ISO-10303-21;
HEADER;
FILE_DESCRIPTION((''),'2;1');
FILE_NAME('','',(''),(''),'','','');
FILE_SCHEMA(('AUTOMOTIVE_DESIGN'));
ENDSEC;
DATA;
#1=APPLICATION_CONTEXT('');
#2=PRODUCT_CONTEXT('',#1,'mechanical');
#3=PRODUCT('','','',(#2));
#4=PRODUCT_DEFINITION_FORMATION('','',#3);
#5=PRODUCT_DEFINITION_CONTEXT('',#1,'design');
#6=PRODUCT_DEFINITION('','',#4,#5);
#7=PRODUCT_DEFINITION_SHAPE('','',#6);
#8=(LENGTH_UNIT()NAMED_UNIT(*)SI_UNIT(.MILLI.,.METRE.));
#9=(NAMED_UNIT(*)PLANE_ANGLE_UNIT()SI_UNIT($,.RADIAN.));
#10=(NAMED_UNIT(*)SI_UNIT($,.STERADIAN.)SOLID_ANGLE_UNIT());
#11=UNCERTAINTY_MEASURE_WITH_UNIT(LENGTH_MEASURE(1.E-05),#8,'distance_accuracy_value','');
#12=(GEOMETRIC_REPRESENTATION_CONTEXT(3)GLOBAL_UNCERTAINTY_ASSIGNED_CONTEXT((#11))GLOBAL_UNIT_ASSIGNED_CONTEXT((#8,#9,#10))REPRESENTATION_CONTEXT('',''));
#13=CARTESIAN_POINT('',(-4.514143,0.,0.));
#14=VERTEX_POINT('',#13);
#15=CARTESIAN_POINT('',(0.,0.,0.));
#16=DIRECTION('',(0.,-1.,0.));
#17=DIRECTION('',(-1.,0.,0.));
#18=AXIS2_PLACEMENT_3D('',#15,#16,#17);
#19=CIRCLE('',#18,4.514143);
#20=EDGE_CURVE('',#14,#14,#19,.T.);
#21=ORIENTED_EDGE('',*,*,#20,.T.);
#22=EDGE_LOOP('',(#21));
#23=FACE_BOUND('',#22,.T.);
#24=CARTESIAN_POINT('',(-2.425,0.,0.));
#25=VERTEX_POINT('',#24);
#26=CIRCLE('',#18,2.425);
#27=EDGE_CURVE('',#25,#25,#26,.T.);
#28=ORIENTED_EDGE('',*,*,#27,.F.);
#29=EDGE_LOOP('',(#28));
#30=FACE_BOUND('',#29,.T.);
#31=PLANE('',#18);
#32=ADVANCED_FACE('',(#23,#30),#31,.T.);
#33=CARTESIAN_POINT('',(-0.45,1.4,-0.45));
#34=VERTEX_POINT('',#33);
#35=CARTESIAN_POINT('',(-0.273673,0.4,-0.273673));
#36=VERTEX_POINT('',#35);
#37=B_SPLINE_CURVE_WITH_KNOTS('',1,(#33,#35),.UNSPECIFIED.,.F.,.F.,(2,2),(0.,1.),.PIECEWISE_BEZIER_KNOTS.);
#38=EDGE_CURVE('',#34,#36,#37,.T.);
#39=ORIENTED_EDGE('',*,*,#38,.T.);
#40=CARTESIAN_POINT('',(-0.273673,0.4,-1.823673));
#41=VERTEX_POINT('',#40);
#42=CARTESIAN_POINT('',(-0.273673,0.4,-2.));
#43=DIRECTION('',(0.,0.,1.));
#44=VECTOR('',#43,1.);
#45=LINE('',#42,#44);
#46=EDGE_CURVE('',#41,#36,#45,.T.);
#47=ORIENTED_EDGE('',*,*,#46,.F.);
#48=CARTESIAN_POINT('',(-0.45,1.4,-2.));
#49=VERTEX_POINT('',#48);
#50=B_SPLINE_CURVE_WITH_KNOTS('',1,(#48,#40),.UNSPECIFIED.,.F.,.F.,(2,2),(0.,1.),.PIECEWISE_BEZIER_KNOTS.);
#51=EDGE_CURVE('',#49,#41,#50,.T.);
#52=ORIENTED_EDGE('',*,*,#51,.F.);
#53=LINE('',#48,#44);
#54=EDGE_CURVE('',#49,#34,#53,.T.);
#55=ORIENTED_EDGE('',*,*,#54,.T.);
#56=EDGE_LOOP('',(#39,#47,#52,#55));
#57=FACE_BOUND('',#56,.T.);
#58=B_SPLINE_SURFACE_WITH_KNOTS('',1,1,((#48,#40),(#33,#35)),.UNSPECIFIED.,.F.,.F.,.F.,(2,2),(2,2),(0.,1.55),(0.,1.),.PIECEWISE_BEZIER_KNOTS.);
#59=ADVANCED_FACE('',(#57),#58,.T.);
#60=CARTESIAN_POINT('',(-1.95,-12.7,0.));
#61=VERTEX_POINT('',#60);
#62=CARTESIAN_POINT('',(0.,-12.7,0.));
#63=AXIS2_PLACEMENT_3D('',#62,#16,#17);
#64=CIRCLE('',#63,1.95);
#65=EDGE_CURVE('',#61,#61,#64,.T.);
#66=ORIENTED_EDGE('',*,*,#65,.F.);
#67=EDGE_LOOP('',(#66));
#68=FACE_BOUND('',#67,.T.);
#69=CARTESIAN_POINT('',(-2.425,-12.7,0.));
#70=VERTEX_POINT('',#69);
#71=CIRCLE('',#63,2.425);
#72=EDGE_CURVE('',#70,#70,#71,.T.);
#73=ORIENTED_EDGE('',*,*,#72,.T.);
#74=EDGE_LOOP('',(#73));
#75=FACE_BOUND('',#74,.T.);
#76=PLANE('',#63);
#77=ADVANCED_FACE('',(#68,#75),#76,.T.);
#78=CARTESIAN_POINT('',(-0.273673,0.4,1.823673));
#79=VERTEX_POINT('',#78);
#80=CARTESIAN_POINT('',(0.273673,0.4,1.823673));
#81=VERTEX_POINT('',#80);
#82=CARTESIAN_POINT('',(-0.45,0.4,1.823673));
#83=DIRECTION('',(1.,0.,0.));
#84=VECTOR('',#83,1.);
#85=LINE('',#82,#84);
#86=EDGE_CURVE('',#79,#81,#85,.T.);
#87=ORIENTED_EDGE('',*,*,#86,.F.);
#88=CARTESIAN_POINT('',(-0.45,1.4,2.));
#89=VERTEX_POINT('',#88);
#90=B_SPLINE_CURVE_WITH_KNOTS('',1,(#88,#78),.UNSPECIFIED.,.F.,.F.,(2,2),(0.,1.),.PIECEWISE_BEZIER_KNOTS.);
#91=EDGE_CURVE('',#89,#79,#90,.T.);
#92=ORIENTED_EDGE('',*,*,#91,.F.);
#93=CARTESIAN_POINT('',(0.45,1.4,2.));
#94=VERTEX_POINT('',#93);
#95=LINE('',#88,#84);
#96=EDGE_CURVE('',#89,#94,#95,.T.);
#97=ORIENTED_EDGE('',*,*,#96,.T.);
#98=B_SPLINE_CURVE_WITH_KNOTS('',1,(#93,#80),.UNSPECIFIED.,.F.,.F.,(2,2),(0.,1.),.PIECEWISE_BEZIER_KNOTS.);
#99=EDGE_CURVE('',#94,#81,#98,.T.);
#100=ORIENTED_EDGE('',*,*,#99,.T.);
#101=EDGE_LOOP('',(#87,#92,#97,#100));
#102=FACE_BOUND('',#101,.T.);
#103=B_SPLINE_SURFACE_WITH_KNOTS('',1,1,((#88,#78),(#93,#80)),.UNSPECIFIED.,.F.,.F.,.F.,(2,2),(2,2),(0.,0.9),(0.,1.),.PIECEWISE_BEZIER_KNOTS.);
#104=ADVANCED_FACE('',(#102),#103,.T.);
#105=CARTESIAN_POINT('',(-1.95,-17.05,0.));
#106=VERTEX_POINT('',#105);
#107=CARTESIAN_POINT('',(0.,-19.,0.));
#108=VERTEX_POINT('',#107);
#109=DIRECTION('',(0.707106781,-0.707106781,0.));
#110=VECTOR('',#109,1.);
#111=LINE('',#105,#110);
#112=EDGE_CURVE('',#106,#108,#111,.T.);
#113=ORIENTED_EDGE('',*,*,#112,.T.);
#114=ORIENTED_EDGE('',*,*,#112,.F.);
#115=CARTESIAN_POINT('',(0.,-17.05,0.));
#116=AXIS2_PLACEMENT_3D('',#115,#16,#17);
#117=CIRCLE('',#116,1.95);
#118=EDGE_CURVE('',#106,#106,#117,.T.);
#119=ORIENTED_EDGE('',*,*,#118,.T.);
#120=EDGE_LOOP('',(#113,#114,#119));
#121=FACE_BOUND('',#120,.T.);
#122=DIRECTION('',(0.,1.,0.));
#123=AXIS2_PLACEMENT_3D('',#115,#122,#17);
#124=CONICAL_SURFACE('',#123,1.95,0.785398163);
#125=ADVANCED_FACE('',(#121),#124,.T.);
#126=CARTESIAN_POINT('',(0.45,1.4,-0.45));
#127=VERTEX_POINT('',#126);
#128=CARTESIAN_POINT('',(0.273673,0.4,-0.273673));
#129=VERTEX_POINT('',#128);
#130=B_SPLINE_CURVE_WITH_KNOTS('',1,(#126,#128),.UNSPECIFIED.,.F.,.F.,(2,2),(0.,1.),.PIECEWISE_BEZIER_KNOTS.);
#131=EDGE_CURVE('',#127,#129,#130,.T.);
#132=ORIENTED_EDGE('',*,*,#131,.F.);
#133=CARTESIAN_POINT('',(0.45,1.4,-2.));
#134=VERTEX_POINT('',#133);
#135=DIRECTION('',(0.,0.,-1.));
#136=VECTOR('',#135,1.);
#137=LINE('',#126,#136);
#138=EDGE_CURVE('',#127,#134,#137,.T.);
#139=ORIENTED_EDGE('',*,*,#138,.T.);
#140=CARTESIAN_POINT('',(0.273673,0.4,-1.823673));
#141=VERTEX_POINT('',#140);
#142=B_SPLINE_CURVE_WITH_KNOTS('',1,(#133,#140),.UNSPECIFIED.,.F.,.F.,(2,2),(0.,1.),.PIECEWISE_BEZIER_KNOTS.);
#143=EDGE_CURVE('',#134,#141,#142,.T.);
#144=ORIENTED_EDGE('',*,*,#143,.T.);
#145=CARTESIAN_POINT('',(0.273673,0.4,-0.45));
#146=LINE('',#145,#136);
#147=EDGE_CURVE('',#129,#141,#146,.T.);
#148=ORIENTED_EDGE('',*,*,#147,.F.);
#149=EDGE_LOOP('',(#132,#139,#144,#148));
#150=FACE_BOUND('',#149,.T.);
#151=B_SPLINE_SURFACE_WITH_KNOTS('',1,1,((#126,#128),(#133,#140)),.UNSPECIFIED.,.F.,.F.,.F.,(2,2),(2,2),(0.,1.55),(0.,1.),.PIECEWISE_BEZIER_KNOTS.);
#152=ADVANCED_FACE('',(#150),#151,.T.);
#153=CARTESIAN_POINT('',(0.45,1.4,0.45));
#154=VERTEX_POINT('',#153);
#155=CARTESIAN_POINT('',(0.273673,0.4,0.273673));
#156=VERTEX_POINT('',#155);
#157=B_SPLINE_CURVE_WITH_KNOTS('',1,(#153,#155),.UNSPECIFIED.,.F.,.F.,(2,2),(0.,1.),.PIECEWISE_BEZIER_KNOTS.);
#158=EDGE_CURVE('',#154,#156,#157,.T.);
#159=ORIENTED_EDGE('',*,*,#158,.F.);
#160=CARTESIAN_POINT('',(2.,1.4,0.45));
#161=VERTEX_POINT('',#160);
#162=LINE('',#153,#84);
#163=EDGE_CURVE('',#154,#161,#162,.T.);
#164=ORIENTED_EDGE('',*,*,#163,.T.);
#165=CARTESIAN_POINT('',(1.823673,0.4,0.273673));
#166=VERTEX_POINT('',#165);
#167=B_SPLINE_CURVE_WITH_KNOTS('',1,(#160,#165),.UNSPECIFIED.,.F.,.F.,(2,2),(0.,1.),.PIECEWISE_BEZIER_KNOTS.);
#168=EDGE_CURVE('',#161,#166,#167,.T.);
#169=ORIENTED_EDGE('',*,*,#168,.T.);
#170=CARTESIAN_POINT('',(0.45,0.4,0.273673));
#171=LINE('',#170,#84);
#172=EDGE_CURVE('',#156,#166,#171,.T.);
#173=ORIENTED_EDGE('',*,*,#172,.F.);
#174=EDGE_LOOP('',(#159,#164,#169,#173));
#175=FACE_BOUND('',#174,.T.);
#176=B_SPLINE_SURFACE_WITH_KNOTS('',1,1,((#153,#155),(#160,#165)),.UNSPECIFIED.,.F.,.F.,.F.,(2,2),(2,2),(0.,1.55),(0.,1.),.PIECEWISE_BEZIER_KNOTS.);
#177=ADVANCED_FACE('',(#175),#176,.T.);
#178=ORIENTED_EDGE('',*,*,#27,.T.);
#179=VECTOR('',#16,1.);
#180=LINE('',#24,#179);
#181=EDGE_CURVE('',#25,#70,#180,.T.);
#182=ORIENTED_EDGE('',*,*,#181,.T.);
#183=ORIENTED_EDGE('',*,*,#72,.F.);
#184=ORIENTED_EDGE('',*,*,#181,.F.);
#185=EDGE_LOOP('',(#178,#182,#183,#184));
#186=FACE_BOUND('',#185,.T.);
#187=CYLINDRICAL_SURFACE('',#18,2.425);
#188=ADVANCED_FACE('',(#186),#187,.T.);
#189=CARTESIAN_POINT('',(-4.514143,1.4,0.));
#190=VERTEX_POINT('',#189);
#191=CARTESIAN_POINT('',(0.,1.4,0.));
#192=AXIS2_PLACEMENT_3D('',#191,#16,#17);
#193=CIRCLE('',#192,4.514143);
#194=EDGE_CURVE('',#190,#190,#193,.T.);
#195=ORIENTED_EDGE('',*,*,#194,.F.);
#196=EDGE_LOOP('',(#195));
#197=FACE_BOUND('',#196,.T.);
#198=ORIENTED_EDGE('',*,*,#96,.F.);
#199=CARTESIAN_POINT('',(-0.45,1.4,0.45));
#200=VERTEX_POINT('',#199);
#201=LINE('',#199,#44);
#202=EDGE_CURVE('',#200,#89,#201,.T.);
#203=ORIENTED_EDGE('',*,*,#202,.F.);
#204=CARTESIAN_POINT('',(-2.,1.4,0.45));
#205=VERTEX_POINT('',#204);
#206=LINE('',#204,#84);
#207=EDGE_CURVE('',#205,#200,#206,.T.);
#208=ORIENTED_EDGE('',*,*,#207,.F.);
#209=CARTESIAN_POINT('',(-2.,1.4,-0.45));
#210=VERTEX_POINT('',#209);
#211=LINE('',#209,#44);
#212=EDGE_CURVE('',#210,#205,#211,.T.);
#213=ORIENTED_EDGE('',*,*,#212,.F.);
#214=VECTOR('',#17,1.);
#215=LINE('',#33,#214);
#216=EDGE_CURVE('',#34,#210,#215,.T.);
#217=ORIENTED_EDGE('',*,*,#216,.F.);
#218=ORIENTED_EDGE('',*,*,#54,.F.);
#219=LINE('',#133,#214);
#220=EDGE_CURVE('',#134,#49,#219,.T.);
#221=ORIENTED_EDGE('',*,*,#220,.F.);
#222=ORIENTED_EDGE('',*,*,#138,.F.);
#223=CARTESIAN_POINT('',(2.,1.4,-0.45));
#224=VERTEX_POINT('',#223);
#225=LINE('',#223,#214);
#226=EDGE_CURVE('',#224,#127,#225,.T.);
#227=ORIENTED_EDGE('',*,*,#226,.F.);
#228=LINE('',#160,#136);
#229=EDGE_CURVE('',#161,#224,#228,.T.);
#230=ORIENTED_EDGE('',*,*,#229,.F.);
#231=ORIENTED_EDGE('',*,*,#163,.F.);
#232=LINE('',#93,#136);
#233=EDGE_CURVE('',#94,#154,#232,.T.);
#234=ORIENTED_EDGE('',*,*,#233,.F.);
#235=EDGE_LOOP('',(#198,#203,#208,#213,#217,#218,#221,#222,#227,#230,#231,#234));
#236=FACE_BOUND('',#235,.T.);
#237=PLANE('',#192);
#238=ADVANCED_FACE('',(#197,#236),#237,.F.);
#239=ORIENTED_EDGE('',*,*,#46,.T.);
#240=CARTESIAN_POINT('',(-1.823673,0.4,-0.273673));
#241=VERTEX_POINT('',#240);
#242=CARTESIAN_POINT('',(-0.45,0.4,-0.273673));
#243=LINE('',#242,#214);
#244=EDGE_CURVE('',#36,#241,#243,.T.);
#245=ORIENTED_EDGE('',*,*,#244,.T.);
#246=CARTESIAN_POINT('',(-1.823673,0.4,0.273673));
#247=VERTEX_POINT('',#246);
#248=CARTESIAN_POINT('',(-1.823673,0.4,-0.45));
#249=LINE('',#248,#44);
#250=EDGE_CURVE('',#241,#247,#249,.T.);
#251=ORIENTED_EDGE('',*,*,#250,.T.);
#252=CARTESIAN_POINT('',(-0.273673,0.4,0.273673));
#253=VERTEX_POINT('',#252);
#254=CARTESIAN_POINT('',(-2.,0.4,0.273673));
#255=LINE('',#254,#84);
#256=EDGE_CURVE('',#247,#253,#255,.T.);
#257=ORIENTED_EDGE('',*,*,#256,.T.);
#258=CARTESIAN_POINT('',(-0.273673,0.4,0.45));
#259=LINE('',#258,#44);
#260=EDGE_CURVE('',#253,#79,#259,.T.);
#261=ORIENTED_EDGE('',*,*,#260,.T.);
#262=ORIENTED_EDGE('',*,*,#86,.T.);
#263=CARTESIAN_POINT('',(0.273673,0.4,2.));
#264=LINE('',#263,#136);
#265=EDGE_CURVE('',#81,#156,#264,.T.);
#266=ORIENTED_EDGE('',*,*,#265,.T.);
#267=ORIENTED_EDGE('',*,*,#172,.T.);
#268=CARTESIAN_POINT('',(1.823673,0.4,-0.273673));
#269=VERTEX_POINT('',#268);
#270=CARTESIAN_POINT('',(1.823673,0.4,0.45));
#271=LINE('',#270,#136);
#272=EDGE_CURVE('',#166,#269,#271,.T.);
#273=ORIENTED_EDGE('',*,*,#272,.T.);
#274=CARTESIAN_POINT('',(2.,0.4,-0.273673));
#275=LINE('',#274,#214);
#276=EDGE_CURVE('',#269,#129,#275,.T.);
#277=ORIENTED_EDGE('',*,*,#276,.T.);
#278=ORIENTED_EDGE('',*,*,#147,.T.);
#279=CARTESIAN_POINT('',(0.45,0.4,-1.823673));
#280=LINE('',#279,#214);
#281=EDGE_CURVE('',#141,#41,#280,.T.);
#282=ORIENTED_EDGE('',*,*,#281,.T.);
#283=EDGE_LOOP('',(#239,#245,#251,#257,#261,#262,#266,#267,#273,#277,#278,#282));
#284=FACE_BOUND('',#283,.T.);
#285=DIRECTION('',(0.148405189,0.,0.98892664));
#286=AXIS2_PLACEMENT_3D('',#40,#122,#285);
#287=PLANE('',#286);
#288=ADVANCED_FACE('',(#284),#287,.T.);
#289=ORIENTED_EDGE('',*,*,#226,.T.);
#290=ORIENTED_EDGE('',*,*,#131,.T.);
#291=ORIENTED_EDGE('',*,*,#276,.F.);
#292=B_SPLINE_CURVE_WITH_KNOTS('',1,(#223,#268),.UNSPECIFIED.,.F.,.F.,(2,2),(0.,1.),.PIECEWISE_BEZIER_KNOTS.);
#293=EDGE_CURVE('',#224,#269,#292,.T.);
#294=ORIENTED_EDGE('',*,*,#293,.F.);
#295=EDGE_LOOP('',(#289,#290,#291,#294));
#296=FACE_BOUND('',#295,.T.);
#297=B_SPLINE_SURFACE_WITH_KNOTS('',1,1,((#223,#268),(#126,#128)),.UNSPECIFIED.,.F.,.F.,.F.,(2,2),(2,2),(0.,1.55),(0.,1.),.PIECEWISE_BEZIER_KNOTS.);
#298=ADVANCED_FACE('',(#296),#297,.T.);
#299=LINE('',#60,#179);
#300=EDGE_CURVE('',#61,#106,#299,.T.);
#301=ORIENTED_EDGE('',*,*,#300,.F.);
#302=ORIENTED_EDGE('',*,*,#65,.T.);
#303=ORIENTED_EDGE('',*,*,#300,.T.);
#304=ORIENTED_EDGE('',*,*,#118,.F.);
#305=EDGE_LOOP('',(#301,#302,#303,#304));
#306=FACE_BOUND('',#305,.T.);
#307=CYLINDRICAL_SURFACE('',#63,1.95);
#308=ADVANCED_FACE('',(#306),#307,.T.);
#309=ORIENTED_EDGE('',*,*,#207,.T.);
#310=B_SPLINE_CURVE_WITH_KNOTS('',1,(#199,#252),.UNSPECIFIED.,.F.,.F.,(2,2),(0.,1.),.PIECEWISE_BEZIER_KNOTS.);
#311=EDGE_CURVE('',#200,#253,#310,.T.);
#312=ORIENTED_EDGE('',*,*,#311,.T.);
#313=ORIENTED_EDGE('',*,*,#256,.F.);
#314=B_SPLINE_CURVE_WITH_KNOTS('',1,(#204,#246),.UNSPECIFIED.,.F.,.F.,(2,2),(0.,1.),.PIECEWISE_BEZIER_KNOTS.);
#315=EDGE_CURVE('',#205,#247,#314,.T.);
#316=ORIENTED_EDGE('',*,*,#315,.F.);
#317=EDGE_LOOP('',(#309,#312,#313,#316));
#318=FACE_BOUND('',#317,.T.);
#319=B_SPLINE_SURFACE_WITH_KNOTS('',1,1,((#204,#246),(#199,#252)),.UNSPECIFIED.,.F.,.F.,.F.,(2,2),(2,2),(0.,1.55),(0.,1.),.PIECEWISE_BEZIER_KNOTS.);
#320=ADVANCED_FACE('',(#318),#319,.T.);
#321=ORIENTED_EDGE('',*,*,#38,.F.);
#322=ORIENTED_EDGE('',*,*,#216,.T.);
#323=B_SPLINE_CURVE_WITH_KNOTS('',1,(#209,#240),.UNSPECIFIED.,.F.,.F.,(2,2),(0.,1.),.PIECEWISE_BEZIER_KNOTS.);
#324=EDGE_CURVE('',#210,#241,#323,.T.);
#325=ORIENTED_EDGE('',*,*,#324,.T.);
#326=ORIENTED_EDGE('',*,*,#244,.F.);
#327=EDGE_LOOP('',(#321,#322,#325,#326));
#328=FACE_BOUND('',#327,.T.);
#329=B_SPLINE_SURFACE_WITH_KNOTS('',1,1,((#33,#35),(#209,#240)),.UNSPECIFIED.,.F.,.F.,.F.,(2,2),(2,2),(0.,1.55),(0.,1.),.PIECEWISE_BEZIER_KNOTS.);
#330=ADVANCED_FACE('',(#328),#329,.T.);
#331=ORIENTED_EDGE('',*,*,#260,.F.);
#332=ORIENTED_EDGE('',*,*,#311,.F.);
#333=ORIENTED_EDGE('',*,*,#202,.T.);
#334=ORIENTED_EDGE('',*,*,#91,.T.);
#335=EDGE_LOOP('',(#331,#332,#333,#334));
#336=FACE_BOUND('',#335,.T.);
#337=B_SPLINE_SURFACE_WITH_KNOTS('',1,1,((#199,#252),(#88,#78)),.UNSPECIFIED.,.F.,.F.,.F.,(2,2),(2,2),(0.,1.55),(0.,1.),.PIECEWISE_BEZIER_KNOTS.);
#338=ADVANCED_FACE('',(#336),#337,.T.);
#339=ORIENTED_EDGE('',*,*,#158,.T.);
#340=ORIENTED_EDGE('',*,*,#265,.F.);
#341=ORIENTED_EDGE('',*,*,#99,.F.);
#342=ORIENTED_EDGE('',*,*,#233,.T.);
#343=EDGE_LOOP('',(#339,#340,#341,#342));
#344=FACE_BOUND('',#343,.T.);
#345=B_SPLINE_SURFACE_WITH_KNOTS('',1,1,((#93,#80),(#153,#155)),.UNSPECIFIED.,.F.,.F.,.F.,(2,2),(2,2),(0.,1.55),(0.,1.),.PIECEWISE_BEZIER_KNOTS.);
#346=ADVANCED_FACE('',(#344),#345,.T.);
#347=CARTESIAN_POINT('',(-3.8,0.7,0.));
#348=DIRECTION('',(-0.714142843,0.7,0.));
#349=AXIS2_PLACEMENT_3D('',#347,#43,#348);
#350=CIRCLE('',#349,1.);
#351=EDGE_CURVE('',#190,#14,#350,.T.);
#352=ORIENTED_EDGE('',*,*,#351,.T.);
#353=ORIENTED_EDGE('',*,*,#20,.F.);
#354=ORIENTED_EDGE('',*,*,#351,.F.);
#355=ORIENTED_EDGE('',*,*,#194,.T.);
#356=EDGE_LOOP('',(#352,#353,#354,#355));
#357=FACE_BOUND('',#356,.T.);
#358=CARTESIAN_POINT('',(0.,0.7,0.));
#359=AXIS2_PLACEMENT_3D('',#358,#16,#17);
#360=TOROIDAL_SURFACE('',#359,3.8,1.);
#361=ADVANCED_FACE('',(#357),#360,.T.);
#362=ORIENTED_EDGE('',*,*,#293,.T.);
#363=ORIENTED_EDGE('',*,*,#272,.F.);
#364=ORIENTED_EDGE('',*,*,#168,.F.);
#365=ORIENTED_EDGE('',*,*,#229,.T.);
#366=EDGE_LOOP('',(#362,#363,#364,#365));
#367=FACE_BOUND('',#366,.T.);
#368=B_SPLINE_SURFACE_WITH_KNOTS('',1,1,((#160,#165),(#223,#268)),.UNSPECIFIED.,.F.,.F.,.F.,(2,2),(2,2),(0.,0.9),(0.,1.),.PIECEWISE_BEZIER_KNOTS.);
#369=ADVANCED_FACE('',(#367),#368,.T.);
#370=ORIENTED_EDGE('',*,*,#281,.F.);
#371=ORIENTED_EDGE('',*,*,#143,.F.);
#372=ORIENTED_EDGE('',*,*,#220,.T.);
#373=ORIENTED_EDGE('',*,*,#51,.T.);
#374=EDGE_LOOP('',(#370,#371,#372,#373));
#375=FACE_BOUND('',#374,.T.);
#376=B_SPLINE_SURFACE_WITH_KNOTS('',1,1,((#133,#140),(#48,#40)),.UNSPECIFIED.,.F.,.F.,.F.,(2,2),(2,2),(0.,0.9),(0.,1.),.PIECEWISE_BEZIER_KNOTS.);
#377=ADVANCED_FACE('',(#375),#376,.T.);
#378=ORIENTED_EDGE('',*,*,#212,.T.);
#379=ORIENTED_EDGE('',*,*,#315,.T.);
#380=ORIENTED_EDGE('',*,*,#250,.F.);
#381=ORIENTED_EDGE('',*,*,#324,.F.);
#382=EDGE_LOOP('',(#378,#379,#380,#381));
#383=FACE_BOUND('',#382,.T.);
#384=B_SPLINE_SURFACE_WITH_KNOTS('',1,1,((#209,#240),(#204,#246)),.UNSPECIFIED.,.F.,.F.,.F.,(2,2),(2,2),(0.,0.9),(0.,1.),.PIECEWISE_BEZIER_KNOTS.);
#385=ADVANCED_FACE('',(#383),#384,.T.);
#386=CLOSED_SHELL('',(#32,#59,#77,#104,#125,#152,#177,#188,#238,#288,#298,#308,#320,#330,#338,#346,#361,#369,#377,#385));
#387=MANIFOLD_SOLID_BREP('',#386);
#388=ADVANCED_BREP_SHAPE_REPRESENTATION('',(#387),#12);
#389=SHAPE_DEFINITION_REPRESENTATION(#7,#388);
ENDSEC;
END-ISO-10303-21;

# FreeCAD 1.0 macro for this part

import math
import FreeCAD as App
import Part
import Sketcher

V = App.Vector
Q = App.Units.Quantity


def add_polygon(sketch, points):
    """Adds a closed chain of lines whose ends are joined by coincident constraints."""
    first, n = sketch.GeometryCount, len(points)
    for a, b in zip(points, points[1:] + points[:1]):
        sketch.addGeometry(Part.LineSegment(App.Vector(*a, 0), App.Vector(*b, 0)), False)
    for i in range(n):
        sketch.addConstraint(Sketcher.Constraint("Coincident", first + i, 2, first + (i + 1) % n, 1))

doc = App.newDocument("Part")
params = doc.addObject("Spreadsheet::Sheet", "Params")
for row, (alias, value) in enumerate([
    ("sketch1_radius", "1 mm"),
    ("sketch1_height", "12.7 mm"),
    ("sketch1_height2", "20.4 mm"),
    ("sketch1_height3", "4.35 mm"),
    ("revolution_angle", "360 deg"),
    ("sketch2_width", "0.9 mm"),
    ("pocket1_length", "1 mm"),
    ("pocket1_taper", "-10 deg"),
], start=1):
    params.set(f"A{row}", alias)
    params.set(f"B{row}", "=" + value)
    params.setAlias(f"B{row}", alias)

body = doc.addObject("PartDesign::Body", "Body")

# Sketch on XY plane
sketch1 = body.newObject("Sketcher::SketchObject", "Sketch")
sketch1.AttachmentSupport = (doc.getObject("XY_Plane"), [""])
sketch1.MapMode = "FlatFace"
sketch1.addGeometry([
    Part.LineSegment(V(-2.425, 0, 0), V(-2.425, -12.7, 0)),  # 0
    Part.LineSegment(V(-2.425, -12.7, 0), V(-1.95, -12.7, 0)),  # 1
    Part.LineSegment(V(-1.95, -12.7, 0), V(-1.95, -17.05, 0)),  # 2
    Part.LineSegment(V(-1.95, -17.05, 0), V(0, -19, 0)),  # 3
    Part.LineSegment(V(0, -19, 0), V(0, 1.4, 0)),  # 4
    Part.LineSegment(V(0, 1.4, 0), V(-4.514143, 1.4, 0)),  # 5
    Part.ArcOfCircle(Part.Circle(V(-3.8, 0.7, 0), V(0, 0, 1), 1), math.radians(135.572996), math.radians(224.427004)),  # 6
    Part.LineSegment(V(-4.514143, 0, 0), V(-2.425, 0, 0)),  # 7
], False)
sketch1.addConstraint([
    Sketcher.Constraint("Coincident", 0, 2, 1, 1),
    Sketcher.Constraint("Coincident", 1, 2, 2, 1),
    Sketcher.Constraint("Coincident", 2, 2, 3, 1),
    Sketcher.Constraint("Coincident", 3, 2, 4, 1),
    Sketcher.Constraint("Coincident", 4, 2, 5, 1),
    Sketcher.Constraint("Coincident", 5, 2, 6, 1),
    Sketcher.Constraint("Coincident", 6, 2, 7, 1),
    Sketcher.Constraint("Coincident", 7, 2, 0, 1),
    Sketcher.Constraint("Vertical", 0),
    Sketcher.Constraint("Horizontal", 1),
    Sketcher.Constraint("Vertical", 2),
    Sketcher.Constraint("Vertical", 4),
    Sketcher.Constraint("Horizontal", 5),
    Sketcher.Constraint("Horizontal", 7),
    Sketcher.Constraint("PointOnObject", 3, 2, -2),
    Sketcher.Constraint("PointOnObject", 6, 2, -1),
    Sketcher.Constraint("Vertical", 5, 2, 6, 2),
    Sketcher.Constraint("Radius", 6, 1.0),
    Sketcher.Constraint("Angle", 3, Q("-45 deg")),
    Sketcher.Constraint("DistanceY", 0, 2, 0, 1, 12.7),
    Sketcher.Constraint("DistanceY", 4, 1, 4, 2, 20.4),
    Sketcher.Constraint("DistanceY", 3, 2, -1, 1, 19.0),
    Sketcher.Constraint("DistanceY", 2, 2, 2, 1, 4.35),
    Sketcher.Constraint("DistanceX", 6, 3, -1, 1, 3.8),
    Sketcher.Constraint("DistanceX", 1, 1, 1, 2, 0.475),
])
sketch1.setExpression("Constraints[17]", "Params.sketch1_radius")
sketch1.setExpression("Constraints[19]", "Params.sketch1_height")
sketch1.setExpression("Constraints[20]", "Params.sketch1_height2")
sketch1.setExpression("Constraints[22]", "Params.sketch1_height3")
revolution = body.newObject("PartDesign::Revolution", "Revolution")
revolution.Profile = sketch1
revolution.ReferenceAxis = (sketch1, ["V_Axis"])
revolution.setExpression("Angle", "Params.revolution_angle")

# Sketch on XZ plane
sketch2 = body.newObject("Sketcher::SketchObject", "Sketch001")
sketch2.AttachmentSupport = (doc.getObject("XZ_Plane"), [""])
sketch2.MapMode = "FlatFace"
sketch2.AttachmentOffset = App.Placement(V(0, 0, -1.4), App.Rotation())
add_polygon(sketch2, [(-0.45, -2), (-0.45, -0.45), (-2, -0.45), (-2, 0.45), (-0.45, 0.45), (-0.45, 2), (0.45, 2), (0.45, 0.45), (2, 0.45), (2, -0.45), (0.45, -0.45), (0.45, -2)])  # lines 0-11
sketch2.addConstraint([
    Sketcher.Constraint("Vertical", 0),
    Sketcher.Constraint("Horizontal", 1),
    Sketcher.Constraint("Vertical", 2),
    Sketcher.Constraint("Horizontal", 3),
    Sketcher.Constraint("Vertical", 4),
    Sketcher.Constraint("Horizontal", 5),
    Sketcher.Constraint("Vertical", 6),
    Sketcher.Constraint("Horizontal", 7),
    Sketcher.Constraint("Vertical", 8),
    Sketcher.Constraint("Horizontal", 9),
    Sketcher.Constraint("Vertical", 10),
    Sketcher.Constraint("Horizontal", 11),
    Sketcher.Constraint("Symmetric", 0, 2, 6, 2, -1, 1),
    Sketcher.Constraint("Symmetric", 2, 2, 8, 2, -1, 1),
    Sketcher.Constraint("Symmetric", 4, 2, 10, 2, -1, 1),
    Sketcher.Constraint("Symmetric", 3, 2, 6, 2, -2),
    Sketcher.Constraint("Equal", 9, 0),
    Sketcher.Constraint("Equal", 11, 2),
    Sketcher.Constraint("DistanceX", 5, 1, 5, 2, 0.9),
    Sketcher.Constraint("DistanceX", 1, 2, -1, 1, 2.0),
])
sketch2.setExpression("Constraints[30]", "Params.sketch2_width")
pocket1 = body.newObject("PartDesign::Pocket", "Pocket")
pocket1.Profile = sketch2
pocket1.setExpression("Length", "Params.pocket1_length")
pocket1.Reversed = True
pocket1.setExpression("TaperAngle", "Params.pocket1_taper")

doc.recompute()
